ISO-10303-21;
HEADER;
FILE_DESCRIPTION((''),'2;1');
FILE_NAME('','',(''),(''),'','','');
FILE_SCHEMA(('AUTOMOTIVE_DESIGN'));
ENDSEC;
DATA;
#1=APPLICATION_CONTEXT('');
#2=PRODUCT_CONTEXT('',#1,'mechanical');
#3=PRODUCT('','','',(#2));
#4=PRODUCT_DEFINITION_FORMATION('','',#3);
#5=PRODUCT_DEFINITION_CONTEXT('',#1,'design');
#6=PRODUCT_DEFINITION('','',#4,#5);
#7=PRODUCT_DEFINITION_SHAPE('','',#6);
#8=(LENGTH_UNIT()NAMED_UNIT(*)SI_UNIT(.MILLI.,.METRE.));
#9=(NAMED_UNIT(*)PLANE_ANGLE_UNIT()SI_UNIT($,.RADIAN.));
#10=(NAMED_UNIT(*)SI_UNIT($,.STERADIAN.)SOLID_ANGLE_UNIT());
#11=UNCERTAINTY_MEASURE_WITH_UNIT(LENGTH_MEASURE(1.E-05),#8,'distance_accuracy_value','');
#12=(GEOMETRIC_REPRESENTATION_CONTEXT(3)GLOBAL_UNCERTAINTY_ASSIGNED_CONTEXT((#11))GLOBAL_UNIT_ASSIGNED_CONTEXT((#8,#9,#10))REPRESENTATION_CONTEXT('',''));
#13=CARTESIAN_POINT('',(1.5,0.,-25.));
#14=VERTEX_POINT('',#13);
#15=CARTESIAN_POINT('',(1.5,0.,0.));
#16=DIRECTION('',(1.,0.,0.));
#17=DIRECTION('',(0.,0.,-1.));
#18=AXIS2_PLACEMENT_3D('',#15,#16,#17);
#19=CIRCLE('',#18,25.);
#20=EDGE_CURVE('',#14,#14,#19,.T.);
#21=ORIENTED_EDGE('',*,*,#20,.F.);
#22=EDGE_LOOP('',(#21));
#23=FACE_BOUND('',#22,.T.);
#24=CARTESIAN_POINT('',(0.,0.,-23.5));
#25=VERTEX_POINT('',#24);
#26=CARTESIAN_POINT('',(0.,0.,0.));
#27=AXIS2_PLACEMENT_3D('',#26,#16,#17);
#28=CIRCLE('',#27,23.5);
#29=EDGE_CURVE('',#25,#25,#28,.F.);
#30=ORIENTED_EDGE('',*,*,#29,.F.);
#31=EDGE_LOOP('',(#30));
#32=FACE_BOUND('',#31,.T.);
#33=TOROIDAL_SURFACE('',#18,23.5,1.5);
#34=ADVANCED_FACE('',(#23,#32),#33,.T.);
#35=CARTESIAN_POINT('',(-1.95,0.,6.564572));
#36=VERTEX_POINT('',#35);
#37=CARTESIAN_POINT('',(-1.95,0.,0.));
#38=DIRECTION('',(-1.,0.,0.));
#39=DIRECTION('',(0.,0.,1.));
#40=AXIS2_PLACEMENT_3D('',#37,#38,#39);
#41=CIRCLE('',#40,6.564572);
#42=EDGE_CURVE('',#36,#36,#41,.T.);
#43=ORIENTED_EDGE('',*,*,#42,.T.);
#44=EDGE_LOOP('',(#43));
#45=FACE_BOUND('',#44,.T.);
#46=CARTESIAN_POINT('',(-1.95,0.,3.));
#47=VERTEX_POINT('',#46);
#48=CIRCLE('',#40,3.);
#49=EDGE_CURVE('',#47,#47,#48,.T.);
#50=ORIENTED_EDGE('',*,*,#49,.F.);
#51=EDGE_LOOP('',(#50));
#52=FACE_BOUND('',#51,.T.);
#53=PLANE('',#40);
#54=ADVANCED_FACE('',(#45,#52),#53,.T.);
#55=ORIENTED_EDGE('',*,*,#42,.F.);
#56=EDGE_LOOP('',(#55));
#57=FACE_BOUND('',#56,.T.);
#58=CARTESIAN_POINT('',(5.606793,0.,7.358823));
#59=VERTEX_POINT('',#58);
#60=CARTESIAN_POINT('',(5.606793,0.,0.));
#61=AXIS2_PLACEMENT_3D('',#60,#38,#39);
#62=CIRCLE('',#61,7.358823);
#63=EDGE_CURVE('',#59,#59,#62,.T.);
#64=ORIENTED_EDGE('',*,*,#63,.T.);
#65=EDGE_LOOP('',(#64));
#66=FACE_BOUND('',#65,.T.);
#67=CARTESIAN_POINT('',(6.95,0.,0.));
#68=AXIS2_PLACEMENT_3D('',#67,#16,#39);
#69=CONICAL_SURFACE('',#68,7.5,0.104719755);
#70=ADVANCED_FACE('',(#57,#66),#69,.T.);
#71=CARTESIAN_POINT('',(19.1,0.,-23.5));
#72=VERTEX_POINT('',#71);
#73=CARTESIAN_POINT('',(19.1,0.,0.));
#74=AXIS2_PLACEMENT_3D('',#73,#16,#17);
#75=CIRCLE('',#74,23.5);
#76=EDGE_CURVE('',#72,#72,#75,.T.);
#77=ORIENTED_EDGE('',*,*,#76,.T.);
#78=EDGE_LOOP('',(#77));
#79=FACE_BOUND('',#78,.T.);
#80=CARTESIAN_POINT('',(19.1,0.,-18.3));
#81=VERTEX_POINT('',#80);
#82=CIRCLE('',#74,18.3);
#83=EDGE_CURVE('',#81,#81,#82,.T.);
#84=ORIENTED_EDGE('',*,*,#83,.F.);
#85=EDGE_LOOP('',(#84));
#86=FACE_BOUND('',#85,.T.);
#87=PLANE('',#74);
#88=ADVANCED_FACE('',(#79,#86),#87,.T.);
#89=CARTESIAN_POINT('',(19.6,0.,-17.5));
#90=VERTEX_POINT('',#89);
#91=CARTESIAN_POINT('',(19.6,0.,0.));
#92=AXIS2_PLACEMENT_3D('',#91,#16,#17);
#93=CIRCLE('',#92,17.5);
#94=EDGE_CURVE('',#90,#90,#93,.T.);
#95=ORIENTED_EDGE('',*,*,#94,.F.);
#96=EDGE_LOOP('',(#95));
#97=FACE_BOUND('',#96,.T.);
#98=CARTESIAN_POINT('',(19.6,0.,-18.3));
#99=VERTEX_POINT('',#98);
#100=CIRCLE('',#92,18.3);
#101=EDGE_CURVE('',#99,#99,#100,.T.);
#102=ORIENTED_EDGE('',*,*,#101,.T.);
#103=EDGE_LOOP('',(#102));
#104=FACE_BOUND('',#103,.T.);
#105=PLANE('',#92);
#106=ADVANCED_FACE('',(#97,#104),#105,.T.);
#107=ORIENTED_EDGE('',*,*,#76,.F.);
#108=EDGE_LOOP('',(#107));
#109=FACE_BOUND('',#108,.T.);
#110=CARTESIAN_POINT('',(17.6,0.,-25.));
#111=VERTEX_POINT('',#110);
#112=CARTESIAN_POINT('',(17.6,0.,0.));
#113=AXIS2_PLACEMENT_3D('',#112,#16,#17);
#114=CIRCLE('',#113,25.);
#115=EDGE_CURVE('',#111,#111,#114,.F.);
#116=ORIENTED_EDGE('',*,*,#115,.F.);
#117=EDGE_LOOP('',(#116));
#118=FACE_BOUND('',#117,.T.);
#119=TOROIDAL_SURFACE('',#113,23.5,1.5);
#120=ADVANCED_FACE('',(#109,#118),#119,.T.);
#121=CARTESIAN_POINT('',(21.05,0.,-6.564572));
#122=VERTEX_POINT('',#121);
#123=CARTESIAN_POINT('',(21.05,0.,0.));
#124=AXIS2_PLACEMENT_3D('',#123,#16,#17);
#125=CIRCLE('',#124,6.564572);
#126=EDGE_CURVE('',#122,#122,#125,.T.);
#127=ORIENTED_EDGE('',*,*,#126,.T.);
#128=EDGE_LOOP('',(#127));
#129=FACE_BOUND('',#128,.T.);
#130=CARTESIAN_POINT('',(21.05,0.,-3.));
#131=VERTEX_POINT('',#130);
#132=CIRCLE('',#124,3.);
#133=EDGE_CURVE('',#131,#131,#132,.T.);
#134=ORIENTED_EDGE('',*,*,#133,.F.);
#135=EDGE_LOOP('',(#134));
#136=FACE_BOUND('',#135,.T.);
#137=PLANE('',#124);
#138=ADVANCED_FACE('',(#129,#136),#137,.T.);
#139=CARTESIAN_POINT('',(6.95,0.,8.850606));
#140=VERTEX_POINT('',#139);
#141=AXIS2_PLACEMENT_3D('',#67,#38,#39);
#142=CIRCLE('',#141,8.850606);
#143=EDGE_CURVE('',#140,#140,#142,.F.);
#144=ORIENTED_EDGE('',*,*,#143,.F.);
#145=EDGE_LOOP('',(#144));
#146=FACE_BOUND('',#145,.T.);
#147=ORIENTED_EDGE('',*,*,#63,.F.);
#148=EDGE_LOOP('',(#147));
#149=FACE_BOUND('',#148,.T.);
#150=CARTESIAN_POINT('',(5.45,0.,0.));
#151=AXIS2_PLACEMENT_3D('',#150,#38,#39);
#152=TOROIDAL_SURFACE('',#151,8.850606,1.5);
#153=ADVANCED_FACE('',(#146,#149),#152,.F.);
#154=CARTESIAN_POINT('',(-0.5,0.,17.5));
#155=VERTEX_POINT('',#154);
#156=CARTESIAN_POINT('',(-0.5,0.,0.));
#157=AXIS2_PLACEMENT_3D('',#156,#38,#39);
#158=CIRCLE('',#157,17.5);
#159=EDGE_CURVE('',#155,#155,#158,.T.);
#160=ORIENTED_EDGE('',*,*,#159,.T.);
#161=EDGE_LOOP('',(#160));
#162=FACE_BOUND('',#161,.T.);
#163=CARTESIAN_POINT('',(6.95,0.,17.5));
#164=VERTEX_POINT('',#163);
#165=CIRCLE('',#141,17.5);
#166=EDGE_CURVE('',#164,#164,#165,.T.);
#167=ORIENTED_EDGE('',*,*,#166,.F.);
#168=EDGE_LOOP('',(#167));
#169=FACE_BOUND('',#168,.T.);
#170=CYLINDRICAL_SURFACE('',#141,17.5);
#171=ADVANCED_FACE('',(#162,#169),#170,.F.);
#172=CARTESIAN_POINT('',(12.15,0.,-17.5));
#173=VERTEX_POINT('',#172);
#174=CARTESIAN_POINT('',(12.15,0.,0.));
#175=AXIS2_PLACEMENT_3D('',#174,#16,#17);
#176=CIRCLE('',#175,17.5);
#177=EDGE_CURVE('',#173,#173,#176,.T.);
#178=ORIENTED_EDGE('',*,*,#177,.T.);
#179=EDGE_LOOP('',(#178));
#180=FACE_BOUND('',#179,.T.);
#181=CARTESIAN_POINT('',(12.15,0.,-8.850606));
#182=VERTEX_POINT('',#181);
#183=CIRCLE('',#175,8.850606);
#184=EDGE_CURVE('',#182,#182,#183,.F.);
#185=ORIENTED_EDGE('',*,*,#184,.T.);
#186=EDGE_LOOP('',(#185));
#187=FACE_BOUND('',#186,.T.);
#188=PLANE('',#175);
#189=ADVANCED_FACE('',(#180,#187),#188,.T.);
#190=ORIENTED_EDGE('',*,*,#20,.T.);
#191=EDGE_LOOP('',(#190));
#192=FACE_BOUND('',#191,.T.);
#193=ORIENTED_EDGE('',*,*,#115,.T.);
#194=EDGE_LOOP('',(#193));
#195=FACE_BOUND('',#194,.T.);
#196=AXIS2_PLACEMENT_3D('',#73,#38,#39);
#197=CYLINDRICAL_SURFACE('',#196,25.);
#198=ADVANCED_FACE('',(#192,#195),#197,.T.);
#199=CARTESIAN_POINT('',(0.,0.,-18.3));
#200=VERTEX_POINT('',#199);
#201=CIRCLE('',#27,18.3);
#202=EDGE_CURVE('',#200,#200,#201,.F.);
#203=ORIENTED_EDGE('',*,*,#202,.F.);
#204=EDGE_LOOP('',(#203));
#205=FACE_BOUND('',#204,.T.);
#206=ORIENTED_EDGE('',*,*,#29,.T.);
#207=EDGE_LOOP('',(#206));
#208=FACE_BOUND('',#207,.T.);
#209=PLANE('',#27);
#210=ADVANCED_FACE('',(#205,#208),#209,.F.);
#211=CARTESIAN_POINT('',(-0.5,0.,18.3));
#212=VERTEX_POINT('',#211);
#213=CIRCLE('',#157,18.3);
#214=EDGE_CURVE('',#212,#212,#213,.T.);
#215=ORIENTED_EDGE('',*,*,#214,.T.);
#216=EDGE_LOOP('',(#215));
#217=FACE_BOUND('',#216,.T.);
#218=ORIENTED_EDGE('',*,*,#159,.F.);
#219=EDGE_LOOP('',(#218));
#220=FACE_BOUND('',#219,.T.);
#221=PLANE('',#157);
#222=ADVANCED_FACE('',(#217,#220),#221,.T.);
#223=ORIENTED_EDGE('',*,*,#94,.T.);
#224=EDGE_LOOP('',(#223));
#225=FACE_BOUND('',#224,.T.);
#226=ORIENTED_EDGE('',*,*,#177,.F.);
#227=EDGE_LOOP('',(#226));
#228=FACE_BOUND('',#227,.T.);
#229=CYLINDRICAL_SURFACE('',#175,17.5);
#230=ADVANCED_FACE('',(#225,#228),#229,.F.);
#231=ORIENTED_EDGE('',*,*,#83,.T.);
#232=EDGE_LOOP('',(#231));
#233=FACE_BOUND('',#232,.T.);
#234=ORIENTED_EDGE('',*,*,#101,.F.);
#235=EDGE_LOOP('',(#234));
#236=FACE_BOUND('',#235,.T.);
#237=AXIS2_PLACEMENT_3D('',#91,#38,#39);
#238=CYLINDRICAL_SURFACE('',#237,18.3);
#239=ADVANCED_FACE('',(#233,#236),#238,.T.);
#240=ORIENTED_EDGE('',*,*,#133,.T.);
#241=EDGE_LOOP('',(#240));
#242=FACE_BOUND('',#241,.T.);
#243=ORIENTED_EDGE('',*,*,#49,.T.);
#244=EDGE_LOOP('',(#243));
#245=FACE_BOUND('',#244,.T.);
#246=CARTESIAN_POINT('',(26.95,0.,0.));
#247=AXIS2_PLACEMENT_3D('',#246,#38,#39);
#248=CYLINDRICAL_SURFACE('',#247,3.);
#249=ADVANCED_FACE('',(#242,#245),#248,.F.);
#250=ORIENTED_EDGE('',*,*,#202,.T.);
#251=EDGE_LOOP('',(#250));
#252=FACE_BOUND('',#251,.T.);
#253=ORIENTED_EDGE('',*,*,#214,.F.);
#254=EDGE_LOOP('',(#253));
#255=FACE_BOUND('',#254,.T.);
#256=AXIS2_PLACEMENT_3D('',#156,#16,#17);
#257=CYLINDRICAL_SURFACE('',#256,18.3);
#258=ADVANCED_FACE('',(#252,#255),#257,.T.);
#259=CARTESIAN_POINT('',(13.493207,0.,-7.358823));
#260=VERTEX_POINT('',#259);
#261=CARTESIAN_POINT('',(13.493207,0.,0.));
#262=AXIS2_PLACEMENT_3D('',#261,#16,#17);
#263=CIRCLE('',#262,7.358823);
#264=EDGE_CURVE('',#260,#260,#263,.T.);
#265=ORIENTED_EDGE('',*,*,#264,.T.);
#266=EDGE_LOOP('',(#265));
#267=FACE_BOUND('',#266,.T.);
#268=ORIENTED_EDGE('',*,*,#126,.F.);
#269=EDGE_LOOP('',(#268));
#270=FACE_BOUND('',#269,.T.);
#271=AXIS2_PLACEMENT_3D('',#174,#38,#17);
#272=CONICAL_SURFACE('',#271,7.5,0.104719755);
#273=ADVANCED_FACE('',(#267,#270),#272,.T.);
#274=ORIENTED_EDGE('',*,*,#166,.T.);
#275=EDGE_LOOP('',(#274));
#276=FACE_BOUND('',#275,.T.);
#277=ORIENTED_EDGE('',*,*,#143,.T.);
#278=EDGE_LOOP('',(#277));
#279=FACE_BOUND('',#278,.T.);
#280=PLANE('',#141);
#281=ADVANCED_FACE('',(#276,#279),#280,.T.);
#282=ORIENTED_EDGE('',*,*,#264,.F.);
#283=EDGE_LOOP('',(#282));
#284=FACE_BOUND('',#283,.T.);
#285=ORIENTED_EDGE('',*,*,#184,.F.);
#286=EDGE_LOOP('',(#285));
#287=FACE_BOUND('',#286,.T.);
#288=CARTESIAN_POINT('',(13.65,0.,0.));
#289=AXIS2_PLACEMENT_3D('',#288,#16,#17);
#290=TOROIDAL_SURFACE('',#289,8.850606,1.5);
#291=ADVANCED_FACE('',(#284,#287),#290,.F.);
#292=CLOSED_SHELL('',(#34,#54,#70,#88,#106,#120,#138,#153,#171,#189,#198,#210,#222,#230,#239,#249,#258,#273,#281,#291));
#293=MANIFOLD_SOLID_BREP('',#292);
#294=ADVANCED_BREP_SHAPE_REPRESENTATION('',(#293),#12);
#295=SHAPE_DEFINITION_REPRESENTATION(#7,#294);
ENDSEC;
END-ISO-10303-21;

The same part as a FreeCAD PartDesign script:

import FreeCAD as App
import Part
import Sketcher


def edges_at(feature, points):
    """Names of the edges that pass closest to the given points."""
    edges = feature.Shape.Edges
    near = lambda p: min(range(len(edges)), key=lambda i: edges[i].distToShape(Part.Vertex(*p))[0])
    return sorted({f"Edge{near(p) + 1}" for p in points})

doc = App.newDocument("Part")
body = doc.addObject("PartDesign::Body", "Body")

# Sketch on YZ plane
sketch1 = body.newObject("Sketcher::SketchObject", "Sketch")
sketch1.AttachmentSupport = (doc.getObject("YZ_Plane"), [""])
sketch1.MapMode = "FlatFace"
sketch1.addGeometry(Part.Circle(App.Vector(0, 0, 0), App.Vector(0, 0, 1), 25), False)
sketch1.addConstraint([
    Sketcher.Constraint("Coincident", 0, 3, -1, 1),
    Sketcher.Constraint("Diameter", 0, 50.0),
])
pad1 = body.newObject("PartDesign::Pad", "Pad")
pad1.Profile = sketch1
pad1.Length = 19.1

# Sketch on YZ plane
sketch2 = body.newObject("Sketcher::SketchObject", "Sketch001")
sketch2.AttachmentSupport = (doc.getObject("YZ_Plane"), [""])
sketch2.MapMode = "FlatFace"
sketch2.AttachmentOffset = App.Placement(App.Vector(0, 0, 19.1), App.Rotation())
sketch2.addGeometry(Part.Circle(App.Vector(0, 0, 0), App.Vector(0, 0, 1), 18.3), False)
sketch2.addConstraint([
    Sketcher.Constraint("Coincident", 0, 3, -1, 1),
    Sketcher.Constraint("Diameter", 0, 36.6),
])
pad2 = body.newObject("PartDesign::Pad", "Pad001")
pad2.Profile = sketch2
pad2.Length = 0.5
doc.recompute()

fillet = body.newObject("PartDesign::Fillet", "Fillet")
fillet.Base = (pad2, edges_at(pad2, [(0, 0, 25), (19.1, 0, 25)]))
fillet.Radius = 1.5

# Sketch on YZ plane
sketch3 = body.newObject("Sketcher::SketchObject", "Sketch002")
sketch3.AttachmentSupport = (doc.getObject("YZ_Plane"), [""])
sketch3.MapMode = "FlatFace"
sketch3.addGeometry(Part.Circle(App.Vector(0, 0, 0), App.Vector(0, 0, 1), 18.3), False)
sketch3.addConstraint([
    Sketcher.Constraint("Coincident", 0, 3, -1, 1),
    Sketcher.Constraint("Diameter", 0, 36.6),
])
pad3 = body.newObject("PartDesign::Pad", "Pad002")
pad3.Profile = sketch3
pad3.Length = 0.5
pad3.Reversed = True

# Sketch on YZ plane
sketch4 = body.newObject("Sketcher::SketchObject", "Sketch003")
sketch4.AttachmentSupport = (doc.getObject("YZ_Plane"), [""])
sketch4.MapMode = "FlatFace"
sketch4.AttachmentOffset = App.Placement(App.Vector(0, 0, -0.5), App.Rotation())
sketch4.addGeometry(Part.Circle(App.Vector(0, 0, 0), App.Vector(0, 0, 1), 17.5), False)
sketch4.addConstraint([
    Sketcher.Constraint("Coincident", 0, 3, -1, 1),
    Sketcher.Constraint("Diameter", 0, 35.0),
])
pocket1 = body.newObject("PartDesign::Pocket", "Pocket")
pocket1.Profile = sketch4
pocket1.Length = 7.45
pocket1.Reversed = True

# Sketch on YZ plane
sketch5 = body.newObject("Sketcher::SketchObject", "Sketch004")
sketch5.AttachmentSupport = (doc.getObject("YZ_Plane"), [""])
sketch5.MapMode = "FlatFace"
sketch5.AttachmentOffset = App.Placement(App.Vector(0, 0, 19.6), App.Rotation())
sketch5.addGeometry(Part.Circle(App.Vector(0, 0, 0), App.Vector(0, 0, 1), 17.5), False)
sketch5.addConstraint([
    Sketcher.Constraint("Coincident", 0, 3, -1, 1),
    Sketcher.Constraint("Diameter", 0, 35.0),
])
pocket2 = body.newObject("PartDesign::Pocket", "Pocket001")
pocket2.Profile = sketch5
pocket2.Length = 7.45

# Sketch on YZ plane
sketch6 = body.newObject("Sketcher::SketchObject", "Sketch005")
sketch6.AttachmentSupport = (doc.getObject("YZ_Plane"), [""])
sketch6.MapMode = "FlatFace"
sketch6.AttachmentOffset = App.Placement(App.Vector(0, 0, 12.15), App.Rotation())
sketch6.addGeometry(Part.Circle(App.Vector(0, 0, 0), App.Vector(0, 0, 1), 7.5), False)
sketch6.addConstraint([
    Sketcher.Constraint("Coincident", 0, 3, -1, 1),
    Sketcher.Constraint("Diameter", 0, 15.0),
])
pad4 = body.newObject("PartDesign::Pad", "Pad003")
pad4.Profile = sketch6
pad4.Length = 8.9
pad4.TaperAngle = -6
doc.recompute()

fillet2 = body.newObject("PartDesign::Fillet", "Fillet001")
fillet2.Base = (pad4, edges_at(pad4, [(12.15, 0, 7.5)]))
fillet2.Radius = 1.5

# Sketch on YZ plane
sketch7 = body.newObject("Sketcher::SketchObject", "Sketch006")
sketch7.AttachmentSupport = (doc.getObject("YZ_Plane"), [""])
sketch7.MapMode = "FlatFace"
sketch7.AttachmentOffset = App.Placement(App.Vector(0, 0, 6.95), App.Rotation())
sketch7.addGeometry(Part.Circle(App.Vector(0, 0, 0), App.Vector(0, 0, 1), 7.5), False)
sketch7.addConstraint([
    Sketcher.Constraint("Coincident", 0, 3, -1, 1),
    Sketcher.Constraint("Diameter", 0, 15.0),
])
pad5 = body.newObject("PartDesign::Pad", "Pad004")
pad5.Profile = sketch7
pad5.Length = 8.9
pad5.Reversed = True
pad5.TaperAngle = -6
doc.recompute()

fillet3 = body.newObject("PartDesign::Fillet", "Fillet002")
fillet3.Base = (pad5, edges_at(pad5, [(6.95, 0, -7.5)]))
fillet3.Radius = 1.5

# Sketch on YZ plane
sketch8 = body.newObject("Sketcher::SketchObject", "Sketch007")
sketch8.AttachmentSupport = (doc.getObject("YZ_Plane"), [""])
sketch8.MapMode = "FlatFace"
sketch8.AttachmentOffset = App.Placement(App.Vector(0, 0, -1.95), App.Rotation())
sketch8.addGeometry(Part.Circle(App.Vector(0, 0, 0), App.Vector(0, 0, 1), 3), False)
sketch8.addConstraint([
    Sketcher.Constraint("Coincident", 0, 3, -1, 1),
    Sketcher.Constraint("Diameter", 0, 6.0),
])
pocket3 = body.newObject("PartDesign::Pocket", "Pocket002")
pocket3.Profile = sketch8
pocket3.Length = 28.9
pocket3.Reversed = True

doc.recompute()
